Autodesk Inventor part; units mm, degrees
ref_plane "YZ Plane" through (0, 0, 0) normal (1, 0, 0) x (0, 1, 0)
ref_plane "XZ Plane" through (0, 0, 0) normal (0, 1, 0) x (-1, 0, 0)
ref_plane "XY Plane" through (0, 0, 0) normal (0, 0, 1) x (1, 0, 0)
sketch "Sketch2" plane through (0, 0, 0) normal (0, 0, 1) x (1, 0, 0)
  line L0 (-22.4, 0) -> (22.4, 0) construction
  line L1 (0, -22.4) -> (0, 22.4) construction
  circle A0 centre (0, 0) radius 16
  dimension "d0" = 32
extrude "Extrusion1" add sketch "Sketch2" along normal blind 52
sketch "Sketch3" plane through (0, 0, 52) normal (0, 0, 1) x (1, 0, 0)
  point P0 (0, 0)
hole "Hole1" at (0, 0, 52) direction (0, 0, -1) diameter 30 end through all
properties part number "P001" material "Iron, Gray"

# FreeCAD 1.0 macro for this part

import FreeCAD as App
import Part
import Sketcher
Q = App.Units.Quantity

doc = App.newDocument("Part")
body = doc.addObject("PartDesign::Body", "Body")

sketch1 = body.newObject("Sketcher::SketchObject", "Sketch")
sketch1.AttachmentSupport = (doc.getObject("XY_Plane"), [""])
sketch1.MapMode = "FlatFace"
sketch1.addGeometry(Part.Circle(App.Vector(0, 0, 0), App.Vector(0, 0, 1), 16), False)
sketch1.addConstraint(Sketcher.Constraint("Coincident", 0, 3, -1, 1))
sketch1.addConstraint(Sketcher.Constraint("Diameter", 0, Q("32 mm")))
pad1 = body.newObject("PartDesign::Pad", "Pad")
pad1.Profile = sketch1
pad1.Length = 52

sketch2 = body.newObject("Sketcher::SketchObject", "Sketch001")
sketch2.AttachmentSupport = (doc.getObject("XY_Plane"), [""])
sketch2.MapMode = "FlatFace"
sketch2.AttachmentOffset = App.Placement(App.Vector(0, 0, 52), App.Rotation())
sketch2.addGeometry(Part.Circle(App.Vector(0, 0, 0), App.Vector(0, 0, 1), 15), False)
sketch2.addConstraint(Sketcher.Constraint("Coincident", 0, 3, -1, 1))
sketch2.addConstraint(Sketcher.Constraint("Diameter", 0, Q("30 mm")))
doc.recompute()
hole = body.newObject("PartDesign::Hole", "Hole")
hole.Profile = sketch2
hole.ThreadType = "None"
hole.Diameter = 30
hole.DepthType = "ThroughAll"

doc.recompute()
